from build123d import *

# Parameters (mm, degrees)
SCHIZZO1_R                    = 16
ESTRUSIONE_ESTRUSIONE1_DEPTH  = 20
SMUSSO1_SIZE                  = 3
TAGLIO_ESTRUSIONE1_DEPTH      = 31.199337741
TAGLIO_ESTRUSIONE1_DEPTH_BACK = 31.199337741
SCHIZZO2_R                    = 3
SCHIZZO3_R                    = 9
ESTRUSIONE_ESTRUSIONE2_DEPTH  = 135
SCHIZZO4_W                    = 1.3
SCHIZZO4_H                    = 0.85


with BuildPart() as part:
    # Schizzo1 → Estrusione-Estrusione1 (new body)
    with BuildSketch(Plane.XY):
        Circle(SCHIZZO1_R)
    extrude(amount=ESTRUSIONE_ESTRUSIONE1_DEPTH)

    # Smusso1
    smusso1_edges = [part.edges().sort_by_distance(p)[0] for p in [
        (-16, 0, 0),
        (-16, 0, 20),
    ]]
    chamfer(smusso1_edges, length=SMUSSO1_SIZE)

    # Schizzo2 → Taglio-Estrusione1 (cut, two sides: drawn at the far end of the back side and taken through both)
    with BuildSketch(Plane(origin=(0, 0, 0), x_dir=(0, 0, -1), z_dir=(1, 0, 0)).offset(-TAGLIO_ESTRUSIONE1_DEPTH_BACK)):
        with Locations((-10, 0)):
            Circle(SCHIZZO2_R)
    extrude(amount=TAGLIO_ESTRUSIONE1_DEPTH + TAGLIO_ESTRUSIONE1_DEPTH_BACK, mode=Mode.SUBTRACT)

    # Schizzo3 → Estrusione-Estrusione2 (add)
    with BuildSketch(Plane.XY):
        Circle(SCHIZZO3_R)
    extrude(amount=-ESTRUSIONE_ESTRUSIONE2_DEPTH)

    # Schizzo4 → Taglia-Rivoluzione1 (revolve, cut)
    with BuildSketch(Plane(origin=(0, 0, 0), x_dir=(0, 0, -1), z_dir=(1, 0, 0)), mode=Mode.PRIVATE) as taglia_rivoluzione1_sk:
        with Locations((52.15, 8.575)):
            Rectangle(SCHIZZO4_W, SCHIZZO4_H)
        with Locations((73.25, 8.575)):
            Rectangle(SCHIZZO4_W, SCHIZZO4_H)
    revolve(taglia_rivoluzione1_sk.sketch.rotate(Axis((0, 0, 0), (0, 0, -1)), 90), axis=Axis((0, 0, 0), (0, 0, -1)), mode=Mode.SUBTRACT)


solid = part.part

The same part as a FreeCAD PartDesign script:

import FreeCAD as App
import Part
import Sketcher

V = App.Vector


def edges_at(feature, points):
    """Names of the edges that pass closest to the given points."""
    edges = feature.Shape.Edges
    near = lambda p: min(range(len(edges)), key=lambda i: edges[i].distToShape(Part.Vertex(*p))[0])
    return sorted({f"Edge{near(p) + 1}" for p in points})


def add_polygon(sketch, points):
    """Adds a closed chain of lines whose ends are joined by coincident constraints."""
    first, n = sketch.GeometryCount, len(points)
    for a, b in zip(points, points[1:] + points[:1]):
        sketch.addGeometry(Part.LineSegment(App.Vector(*a, 0), App.Vector(*b, 0)), False)
    for i in range(n):
        sketch.addConstraint(Sketcher.Constraint("Coincident", first + i, 2, first + (i + 1) % n, 1))

doc = App.newDocument("Part")
body = doc.addObject("PartDesign::Body", "Body")

# Sketch on XY plane
sketch1 = body.newObject("Sketcher::SketchObject", "Sketch")
sketch1.AttachmentSupport = (doc.getObject("XY_Plane"), [""])
sketch1.MapMode = "FlatFace"
sketch1.addGeometry(Part.Circle(V(0, 0, 0), V(0, 0, 1), 16), False)
sketch1.addConstraint(Sketcher.Constraint("Coincident", 0, 3, -1, 1))
sketch1.addConstraint(Sketcher.Constraint("Diameter", 0, 32.0))
pad1 = body.newObject("PartDesign::Pad", "Pad")
pad1.Profile = sketch1
pad1.Length = 20
doc.recompute()

chamfer = body.newObject("PartDesign::Chamfer", "Chamfer")
chamfer.Base = (pad1, edges_at(pad1, [(-16, 0, 0), (-16, 0, 20)]))
chamfer.Size = 3

# Sketch on YZ plane
sketch2 = body.newObject("Sketcher::SketchObject", "Sketch001")
sketch2.AttachmentSupport = (doc.getObject("YZ_Plane"), [""])
sketch2.MapMode = "FlatFace"
sketch2.addGeometry(Part.Circle(V(0, 10, 0), V(0, 0, 1), 3), False)
sketch2.addConstraint(Sketcher.Constraint("PointOnObject", 0, 3, -2))
sketch2.addConstraint(Sketcher.Constraint("Diameter", 0, 6.0))
sketch2.addConstraint(Sketcher.Constraint("DistanceY", -1, 1, 0, 3, 10.0))
pocket1 = body.newObject("PartDesign::Pocket", "Pocket")
pocket1.Profile = sketch2
pocket1.Type = "ThroughAll"
pocket1.Midplane = True

# Sketch on XY plane
sketch3 = body.newObject("Sketcher::SketchObject", "Sketch002")
sketch3.AttachmentSupport = (doc.getObject("XY_Plane"), [""])
sketch3.MapMode = "FlatFace"
sketch3.addGeometry(Part.Circle(V(0, 0, 0), V(0, 0, 1), 9), False)
sketch3.addConstraint(Sketcher.Constraint("Coincident", 0, 3, -1, 1))
sketch3.addConstraint(Sketcher.Constraint("Diameter", 0, 18.0))
pad2 = body.newObject("PartDesign::Pad", "Pad001")
pad2.Profile = sketch3
pad2.Length = 135
pad2.Reversed = True

# Sketch on YZ plane
sketch4 = body.newObject("Sketcher::SketchObject", "Sketch003")
sketch4.AttachmentSupport = (doc.getObject("YZ_Plane"), [""])
sketch4.MapMode = "FlatFace"
add_polygon(sketch4, [(9, -51.5), (8.15, -51.5), (8.15, -52.8), (9, -52.8)])  # lines 0-3
add_polygon(sketch4, [(9, -72.6), (8.15, -72.6), (8.15, -73.9), (9, -73.9)])  # lines 4-7
sketch4.addConstraint(Sketcher.Constraint("Horizontal", 0))
sketch4.addConstraint(Sketcher.Constraint("Vertical", 1))
sketch4.addConstraint(Sketcher.Constraint("Horizontal", 2))
sketch4.addConstraint(Sketcher.Constraint("Vertical", 3))
sketch4.addConstraint(Sketcher.Constraint("Horizontal", 4))
sketch4.addConstraint(Sketcher.Constraint("Vertical", 5))
sketch4.addConstraint(Sketcher.Constraint("Horizontal", 6))
sketch4.addConstraint(Sketcher.Constraint("Vertical", 7))
sketch4.addConstraint(Sketcher.Constraint("Vertical", 1, 2, 4, 2))
sketch4.addConstraint(Sketcher.Constraint("Vertical", 3, 2, 6, 2))
sketch4.addConstraint(Sketcher.Constraint("Equal", 3, 5))
sketch4.addConstraint(Sketcher.Constraint("DistanceY", 1, 2, 1, 1, 1.3))
sketch4.addConstraint(Sketcher.Constraint("DistanceX", -1, 1, 2, 2, 9.0))
sketch4.addConstraint(Sketcher.Constraint("DistanceX", 0, 2, 0, 1, 0.85))
sketch4.addConstraint(Sketcher.Constraint("DistanceY", 0, 2, -1, 1, 51.5))
sketch4.addConstraint(Sketcher.Constraint("DistanceY", 4, 2, -1, 1, 72.6))
groove = body.newObject("PartDesign::Groove", "Groove")
groove.Profile = sketch4
groove.ReferenceAxis = (sketch4, ["V_Axis"])
groove.Angle = 360

doc.recompute()
